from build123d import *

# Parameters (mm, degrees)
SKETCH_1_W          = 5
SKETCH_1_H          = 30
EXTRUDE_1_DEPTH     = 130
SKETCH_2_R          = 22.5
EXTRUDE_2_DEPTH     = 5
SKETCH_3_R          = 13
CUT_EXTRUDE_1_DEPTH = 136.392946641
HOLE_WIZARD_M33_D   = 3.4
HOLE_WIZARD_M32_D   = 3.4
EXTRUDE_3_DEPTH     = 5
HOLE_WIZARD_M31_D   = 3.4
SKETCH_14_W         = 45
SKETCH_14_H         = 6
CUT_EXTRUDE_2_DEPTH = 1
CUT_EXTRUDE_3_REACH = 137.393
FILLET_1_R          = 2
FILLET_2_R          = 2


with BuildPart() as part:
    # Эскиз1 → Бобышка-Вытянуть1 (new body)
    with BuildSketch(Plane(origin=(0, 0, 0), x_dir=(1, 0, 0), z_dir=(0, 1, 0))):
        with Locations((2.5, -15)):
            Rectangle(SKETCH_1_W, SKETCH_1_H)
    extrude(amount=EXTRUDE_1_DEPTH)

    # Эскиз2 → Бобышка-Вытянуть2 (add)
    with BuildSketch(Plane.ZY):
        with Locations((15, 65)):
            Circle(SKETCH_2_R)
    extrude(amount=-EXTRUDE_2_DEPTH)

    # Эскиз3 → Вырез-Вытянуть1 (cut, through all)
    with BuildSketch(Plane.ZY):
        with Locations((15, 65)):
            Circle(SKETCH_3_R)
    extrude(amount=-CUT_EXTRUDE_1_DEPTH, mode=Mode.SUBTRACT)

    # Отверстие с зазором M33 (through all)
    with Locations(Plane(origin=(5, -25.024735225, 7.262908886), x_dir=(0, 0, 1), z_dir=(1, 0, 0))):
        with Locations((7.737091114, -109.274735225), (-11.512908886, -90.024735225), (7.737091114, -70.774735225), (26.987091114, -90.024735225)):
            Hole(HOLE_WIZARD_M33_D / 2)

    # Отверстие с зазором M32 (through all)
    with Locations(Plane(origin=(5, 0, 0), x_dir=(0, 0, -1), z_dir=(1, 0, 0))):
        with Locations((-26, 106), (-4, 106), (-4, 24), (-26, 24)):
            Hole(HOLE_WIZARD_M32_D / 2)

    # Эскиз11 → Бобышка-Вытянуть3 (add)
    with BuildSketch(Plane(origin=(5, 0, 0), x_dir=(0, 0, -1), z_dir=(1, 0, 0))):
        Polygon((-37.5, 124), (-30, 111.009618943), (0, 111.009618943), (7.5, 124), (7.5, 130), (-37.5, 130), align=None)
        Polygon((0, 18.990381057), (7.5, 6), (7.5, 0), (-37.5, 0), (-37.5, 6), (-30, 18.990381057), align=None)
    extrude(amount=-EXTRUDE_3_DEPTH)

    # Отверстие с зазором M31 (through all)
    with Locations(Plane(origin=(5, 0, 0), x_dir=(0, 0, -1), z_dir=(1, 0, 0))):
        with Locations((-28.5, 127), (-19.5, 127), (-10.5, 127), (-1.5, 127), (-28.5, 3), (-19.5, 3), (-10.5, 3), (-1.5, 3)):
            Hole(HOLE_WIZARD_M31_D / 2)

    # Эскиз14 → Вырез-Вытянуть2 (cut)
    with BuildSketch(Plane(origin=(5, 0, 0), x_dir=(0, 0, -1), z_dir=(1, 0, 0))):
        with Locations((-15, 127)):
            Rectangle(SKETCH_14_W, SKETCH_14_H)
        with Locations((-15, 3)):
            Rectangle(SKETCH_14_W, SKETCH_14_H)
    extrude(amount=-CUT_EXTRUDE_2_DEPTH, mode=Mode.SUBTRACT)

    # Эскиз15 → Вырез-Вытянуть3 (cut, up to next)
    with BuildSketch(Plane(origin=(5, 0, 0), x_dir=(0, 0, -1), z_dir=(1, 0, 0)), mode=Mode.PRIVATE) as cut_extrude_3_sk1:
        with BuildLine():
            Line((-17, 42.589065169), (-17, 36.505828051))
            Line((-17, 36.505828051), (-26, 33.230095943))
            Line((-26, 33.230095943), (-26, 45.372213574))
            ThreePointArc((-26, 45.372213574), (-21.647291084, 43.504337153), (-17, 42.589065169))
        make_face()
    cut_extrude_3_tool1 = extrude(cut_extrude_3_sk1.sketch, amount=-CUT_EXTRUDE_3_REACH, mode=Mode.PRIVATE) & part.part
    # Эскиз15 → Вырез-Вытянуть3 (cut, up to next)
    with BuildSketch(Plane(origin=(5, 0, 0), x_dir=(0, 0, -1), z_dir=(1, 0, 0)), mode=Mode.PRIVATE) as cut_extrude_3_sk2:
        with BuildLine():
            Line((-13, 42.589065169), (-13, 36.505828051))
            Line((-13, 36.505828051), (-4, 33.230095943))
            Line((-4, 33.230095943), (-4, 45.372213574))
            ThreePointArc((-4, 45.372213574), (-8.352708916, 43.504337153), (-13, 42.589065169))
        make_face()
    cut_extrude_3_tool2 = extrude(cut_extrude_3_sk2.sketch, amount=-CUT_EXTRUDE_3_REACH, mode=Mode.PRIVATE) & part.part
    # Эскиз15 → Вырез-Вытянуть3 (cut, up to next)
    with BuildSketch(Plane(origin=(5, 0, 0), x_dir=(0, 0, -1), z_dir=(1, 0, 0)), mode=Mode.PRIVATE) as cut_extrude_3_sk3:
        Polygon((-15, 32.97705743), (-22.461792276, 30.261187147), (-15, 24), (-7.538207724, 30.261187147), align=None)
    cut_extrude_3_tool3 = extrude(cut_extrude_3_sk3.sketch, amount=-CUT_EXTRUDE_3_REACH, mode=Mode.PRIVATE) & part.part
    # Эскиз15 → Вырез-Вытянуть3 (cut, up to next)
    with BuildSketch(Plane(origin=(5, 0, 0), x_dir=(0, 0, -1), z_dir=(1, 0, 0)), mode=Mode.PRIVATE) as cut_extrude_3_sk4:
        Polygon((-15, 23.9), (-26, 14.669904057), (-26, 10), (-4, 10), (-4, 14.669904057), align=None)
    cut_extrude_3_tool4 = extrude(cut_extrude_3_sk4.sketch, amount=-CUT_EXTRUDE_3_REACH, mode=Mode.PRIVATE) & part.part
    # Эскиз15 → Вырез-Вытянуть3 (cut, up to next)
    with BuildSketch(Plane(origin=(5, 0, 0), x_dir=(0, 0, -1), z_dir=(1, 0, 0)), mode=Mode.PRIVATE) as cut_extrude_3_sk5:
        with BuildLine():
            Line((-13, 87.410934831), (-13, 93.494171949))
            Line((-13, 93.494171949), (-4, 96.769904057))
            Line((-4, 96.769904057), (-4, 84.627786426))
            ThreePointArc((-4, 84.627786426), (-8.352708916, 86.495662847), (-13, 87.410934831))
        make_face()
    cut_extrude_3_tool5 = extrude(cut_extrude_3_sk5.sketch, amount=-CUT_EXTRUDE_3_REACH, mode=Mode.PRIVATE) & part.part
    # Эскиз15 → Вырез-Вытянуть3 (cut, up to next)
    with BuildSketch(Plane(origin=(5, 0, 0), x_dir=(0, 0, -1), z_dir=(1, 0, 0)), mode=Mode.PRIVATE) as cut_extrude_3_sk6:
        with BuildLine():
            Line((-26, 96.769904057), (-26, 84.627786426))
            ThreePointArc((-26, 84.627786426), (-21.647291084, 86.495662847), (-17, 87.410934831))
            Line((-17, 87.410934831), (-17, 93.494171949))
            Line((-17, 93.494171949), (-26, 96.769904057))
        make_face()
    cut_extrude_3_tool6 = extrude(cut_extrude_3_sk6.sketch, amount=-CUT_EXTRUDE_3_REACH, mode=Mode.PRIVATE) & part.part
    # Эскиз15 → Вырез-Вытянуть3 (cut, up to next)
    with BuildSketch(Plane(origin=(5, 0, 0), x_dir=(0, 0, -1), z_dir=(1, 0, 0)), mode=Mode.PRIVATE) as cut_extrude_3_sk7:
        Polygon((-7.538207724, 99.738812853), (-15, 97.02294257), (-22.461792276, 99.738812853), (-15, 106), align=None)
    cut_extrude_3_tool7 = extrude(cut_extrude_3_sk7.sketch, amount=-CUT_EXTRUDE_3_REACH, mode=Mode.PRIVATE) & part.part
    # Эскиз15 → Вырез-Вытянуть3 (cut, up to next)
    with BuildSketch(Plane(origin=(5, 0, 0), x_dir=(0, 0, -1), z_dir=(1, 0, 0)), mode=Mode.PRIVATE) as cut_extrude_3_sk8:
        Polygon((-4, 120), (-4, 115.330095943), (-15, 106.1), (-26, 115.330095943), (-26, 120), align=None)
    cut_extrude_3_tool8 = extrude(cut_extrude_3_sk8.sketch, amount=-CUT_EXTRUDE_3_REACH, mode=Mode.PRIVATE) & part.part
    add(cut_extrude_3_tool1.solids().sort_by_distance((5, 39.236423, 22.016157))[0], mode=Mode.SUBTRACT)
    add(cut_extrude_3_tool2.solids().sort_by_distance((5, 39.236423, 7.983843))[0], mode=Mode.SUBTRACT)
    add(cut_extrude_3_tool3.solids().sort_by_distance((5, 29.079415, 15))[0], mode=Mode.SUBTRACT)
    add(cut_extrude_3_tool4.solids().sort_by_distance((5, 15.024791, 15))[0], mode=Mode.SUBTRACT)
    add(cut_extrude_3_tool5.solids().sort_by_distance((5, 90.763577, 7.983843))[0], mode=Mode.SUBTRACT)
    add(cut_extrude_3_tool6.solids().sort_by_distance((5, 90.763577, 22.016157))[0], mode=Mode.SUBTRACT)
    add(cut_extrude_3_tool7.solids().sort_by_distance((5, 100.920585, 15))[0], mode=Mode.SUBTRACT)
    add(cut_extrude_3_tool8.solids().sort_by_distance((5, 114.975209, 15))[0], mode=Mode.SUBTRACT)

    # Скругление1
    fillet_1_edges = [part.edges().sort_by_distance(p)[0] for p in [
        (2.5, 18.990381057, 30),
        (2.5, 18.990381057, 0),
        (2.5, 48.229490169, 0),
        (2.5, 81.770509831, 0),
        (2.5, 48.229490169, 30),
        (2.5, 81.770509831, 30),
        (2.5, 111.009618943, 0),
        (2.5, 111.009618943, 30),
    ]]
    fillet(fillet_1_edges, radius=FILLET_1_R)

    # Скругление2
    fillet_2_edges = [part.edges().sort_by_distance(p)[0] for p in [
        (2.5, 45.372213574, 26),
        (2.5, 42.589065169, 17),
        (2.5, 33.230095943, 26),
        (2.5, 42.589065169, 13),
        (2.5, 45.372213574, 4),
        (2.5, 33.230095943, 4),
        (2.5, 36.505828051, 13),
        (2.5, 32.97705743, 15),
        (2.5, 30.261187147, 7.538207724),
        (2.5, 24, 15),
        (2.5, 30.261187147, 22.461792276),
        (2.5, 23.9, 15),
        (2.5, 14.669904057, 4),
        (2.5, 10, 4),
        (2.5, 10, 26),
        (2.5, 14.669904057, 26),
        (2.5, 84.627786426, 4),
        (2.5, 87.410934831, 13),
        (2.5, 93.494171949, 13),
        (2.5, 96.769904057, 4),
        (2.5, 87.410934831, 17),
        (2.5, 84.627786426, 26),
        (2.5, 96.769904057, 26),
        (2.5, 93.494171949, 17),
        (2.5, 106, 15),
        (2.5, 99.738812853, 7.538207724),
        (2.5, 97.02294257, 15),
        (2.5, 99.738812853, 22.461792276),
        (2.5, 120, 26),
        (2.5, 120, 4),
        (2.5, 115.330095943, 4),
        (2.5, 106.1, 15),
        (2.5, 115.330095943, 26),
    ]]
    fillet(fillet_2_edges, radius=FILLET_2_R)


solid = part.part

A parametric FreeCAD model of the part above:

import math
import FreeCAD as App
import Part
import Sketcher

V = App.Vector
Q = App.Units.Quantity


def edges_at(feature, points):
    """Names of the edges that pass closest to the given points."""
    edges = feature.Shape.Edges
    near = lambda p: min(range(len(edges)), key=lambda i: edges[i].distToShape(Part.Vertex(*p))[0])
    return sorted({f"Edge{near(p) + 1}" for p in points})

doc = App.newDocument("Part")
body = doc.addObject("PartDesign::Body", "Body")

# Sketch on XZ plane
sketch1 = body.newObject("Sketcher::SketchObject", "Sketch")
sketch1.AttachmentSupport = (doc.getObject("XZ_Plane"), [""])
sketch1.MapMode = "FlatFace"
sketch1.addGeometry(Part.LineSegment(V(0, 0, 0), V(0, 30, 0)), False)
sketch1.addGeometry(Part.LineSegment(V(0, 30, 0), V(5, 30, 0)), False)
sketch1.addGeometry(Part.LineSegment(V(5, 30, 0), V(5, 0, 0)), False)
sketch1.addGeometry(Part.LineSegment(V(5, 0, 0), V(0, 0, 0)), False)
sketch1.addConstraint(Sketcher.Constraint("Coincident", 0, 2, 1, 1))
sketch1.addConstraint(Sketcher.Constraint("Coincident", 1, 2, 2, 1))
sketch1.addConstraint(Sketcher.Constraint("Coincident", 2, 2, 3, 1))
sketch1.addConstraint(Sketcher.Constraint("Coincident", 3, 2, 0, 1))
sketch1.addConstraint(Sketcher.Constraint("Vertical", 0))
sketch1.addConstraint(Sketcher.Constraint("Horizontal", 1))
sketch1.addConstraint(Sketcher.Constraint("Vertical", 2))
sketch1.addConstraint(Sketcher.Constraint("Horizontal", 3))
sketch1.addConstraint(Sketcher.Constraint("Coincident", 3, 2, -1, 1))
sketch1.addConstraint(Sketcher.Constraint("DistanceX", 1, 1, 1, 2, 5.0))
sketch1.addConstraint(Sketcher.Constraint("DistanceY", 0, 1, 0, 2, 30.0))
pad1 = body.newObject("PartDesign::Pad", "Pad")
pad1.Profile = sketch1
pad1.Length = 130
pad1.Reversed = True

# Sketch on YZ plane
sketch2 = body.newObject("Sketcher::SketchObject", "Sketch001")
sketch2.AttachmentSupport = (doc.getObject("YZ_Plane"), [""])
sketch2.MapMode = "FlatFace"
sketch2.addGeometry(Part.Circle(V(65, 15, 0), V(0, 0, 1), 22), False)
sketch2.addConstraint(Sketcher.Constraint("Diameter", 0, 45.0))
sketch2.addConstraint(Sketcher.Constraint("DistanceX", -1, 1, 0, 3, 65.0))
sketch2.addConstraint(Sketcher.Constraint("DistanceY", -1, 1, 0, 3, 15.0))
pad2 = body.newObject("PartDesign::Pad", "Pad001")
pad2.Profile = sketch2
pad2.Length = 5

# Sketch on YZ plane
sketch3 = body.newObject("Sketcher::SketchObject", "Sketch002")
sketch3.AttachmentSupport = (doc.getObject("YZ_Plane"), [""])
sketch3.MapMode = "FlatFace"
sketch3.addGeometry(Part.Circle(V(65, 15, 0), V(0, 0, 1), 13), False)
sketch3.addConstraint(Sketcher.Constraint("Diameter", 0, 26.0))
sketch3.addConstraint(Sketcher.Constraint("DistanceX", -1, 1, 0, 3, 65.0))
sketch3.addConstraint(Sketcher.Constraint("DistanceY", -1, 1, 0, 3, 15.0))
pocket1 = body.newObject("PartDesign::Pocket", "Pocket")
pocket1.Profile = sketch3
pocket1.Type = "ThroughAll"
pocket1.Reversed = True

# Sketch on YZ plane
sketch4 = body.newObject("Sketcher::SketchObject", "Sketch003")
sketch4.AttachmentSupport = (doc.getObject("YZ_Plane"), [""])
sketch4.MapMode = "FlatFace"
sketch4.AttachmentOffset = App.Placement(V(0, 0, 5), App.Rotation())
sketch4.addGeometry(Part.Circle(V(84.2, 15, 0), V(0, 0, 1), 1.7), False)
sketch4.addGeometry(Part.Circle(V(65, -4.2, 0), V(0, 0, 1), 1.7), False)
sketch4.addGeometry(Part.Circle(V(45.8, 15, 0), V(0, 0, 1), 1.7), False)
sketch4.addGeometry(Part.Circle(V(65, 34.2, 0), V(0, 0, 1), 1.7), False)
sketch4.addConstraint(Sketcher.Constraint("Equal", 0, 1))
sketch4.addConstraint(Sketcher.Constraint("Equal", 1, 2))
sketch4.addConstraint(Sketcher.Constraint("Equal", 2, 3))
sketch4.addConstraint(Sketcher.Constraint("Horizontal", 0, 3, 2, 3))
sketch4.addConstraint(Sketcher.Constraint("Vertical", 1, 3, 3, 3))
sketch4.addConstraint(Sketcher.Constraint("Diameter", 0, 3.4))
sketch4.addConstraint(Sketcher.Constraint("DistanceY", -1, 1, 0, 3, 15.0))
sketch4.addConstraint(Sketcher.Constraint("DistanceX", -1, 1, 1, 3, 65.0))
sketch4.addConstraint(Sketcher.Constraint("DistanceX", 2, 3, 0, 3, 38.5))
sketch4.addConstraint(Sketcher.Constraint("DistanceY", 1, 3, 3, 3, 38.5))
sketch4.addConstraint(Sketcher.Constraint("DistanceX", -1, 1, 0, 3, 84.25))
sketch4.addConstraint(Sketcher.Constraint("DistanceY", 1, 3, -1, 1, 4.25))
doc.recompute()
hole = body.newObject("PartDesign::Hole", "Hole")
hole.Profile = sketch4
hole.ThreadType = "None"
hole.Diameter = 3.4
hole.DepthType = "ThroughAll"

# Sketch on YZ plane
sketch5 = body.newObject("Sketcher::SketchObject", "Sketch004")
sketch5.AttachmentSupport = (doc.getObject("YZ_Plane"), [""])
sketch5.MapMode = "FlatFace"
sketch5.AttachmentOffset = App.Placement(V(0, 0, 5), App.Rotation())
sketch5.addGeometry(Part.Circle(V(106, 26, 0), V(0, 0, 1), 1.7), False)
sketch5.addGeometry(Part.Circle(V(106, 4, 0), V(0, 0, 1), 1.7), False)
sketch5.addGeometry(Part.Circle(V(24, 4, 0), V(0, 0, 1), 1.7), False)
sketch5.addGeometry(Part.Circle(V(24, 26, 0), V(0, 0, 1), 1.7), False)
sketch5.addConstraint(Sketcher.Constraint("Equal", 0, 1))
sketch5.addConstraint(Sketcher.Constraint("Equal", 1, 2))
sketch5.addConstraint(Sketcher.Constraint("Equal", 2, 3))
sketch5.addConstraint(Sketcher.Constraint("Horizontal", 1, 3, 2, 3))
sketch5.addConstraint(Sketcher.Constraint("Horizontal", 0, 3, 3, 3))
sketch5.addConstraint(Sketcher.Constraint("Vertical", 0, 3, 1, 3))
sketch5.addConstraint(Sketcher.Constraint("Vertical", 2, 3, 3, 3))
sketch5.addConstraint(Sketcher.Constraint("Diameter", 0, 3.4))
sketch5.addConstraint(Sketcher.Constraint("DistanceX", -1, 1, 0, 3, 106.0))
sketch5.addConstraint(Sketcher.Constraint("DistanceY", -1, 1, 0, 3, 26.0))
sketch5.addConstraint(Sketcher.Constraint("DistanceY", -1, 1, 1, 3, 4.0))
sketch5.addConstraint(Sketcher.Constraint("DistanceX", -1, 1, 2, 3, 24.0))
doc.recompute()
hole2 = body.newObject("PartDesign::Hole", "Hole001")
hole2.Profile = sketch5
hole2.ThreadType = "None"
hole2.Diameter = 3.4
hole2.DepthType = "ThroughAll"

# Sketch on YZ plane
sketch6 = body.newObject("Sketcher::SketchObject", "Sketch005")
sketch6.AttachmentSupport = (doc.getObject("YZ_Plane"), [""])
sketch6.MapMode = "FlatFace"
sketch6.AttachmentOffset = App.Placement(V(0, 0, 5), App.Rotation())
sketch6.addGeometry(Part.LineSegment(V(124, 38, 0), V(111, 30, 0)), False)
sketch6.addGeometry(Part.LineSegment(V(111, 30, 0), V(111, 0, 0)), False)
sketch6.addGeometry(Part.LineSegment(V(111, 0, 0), V(124, -8, 0)), False)
sketch6.addGeometry(Part.LineSegment(V(124, -8, 0), V(130, -8, 0)), False)
sketch6.addGeometry(Part.LineSegment(V(130, -8, 0), V(130, 38, 0)), False)
sketch6.addGeometry(Part.LineSegment(V(130, 38, 0), V(124, 38, 0)), False)
sketch6.addGeometry(Part.LineSegment(V(6, -8, 0), V(19, 0, 0)), False)
sketch6.addGeometry(Part.LineSegment(V(19, 0, 0), V(19, 30, 0)), False)
sketch6.addGeometry(Part.LineSegment(V(19, 30, 0), V(6, 38, 0)), False)
sketch6.addGeometry(Part.LineSegment(V(6, 38, 0), V(0, 38, 0)), False)
sketch6.addGeometry(Part.LineSegment(V(0, 38, 0), V(0, -8, 0)), False)
sketch6.addGeometry(Part.LineSegment(V(0, -8, 0), V(6, -8, 0)), False)
sketch6.addConstraint(Sketcher.Constraint("Coincident", 0, 2, 1, 1))
sketch6.addConstraint(Sketcher.Constraint("Coincident", 1, 2, 2, 1))
sketch6.addConstraint(Sketcher.Constraint("Coincident", 2, 2, 3, 1))
sketch6.addConstraint(Sketcher.Constraint("Coincident", 3, 2, 4, 1))
sketch6.addConstraint(Sketcher.Constraint("Coincident", 4, 2, 5, 1))
sketch6.addConstraint(Sketcher.Constraint("Coincident", 5, 2, 0, 1))
sketch6.addConstraint(Sketcher.Constraint("Coincident", 6, 2, 7, 1))
sketch6.addConstraint(Sketcher.Constraint("Coincident", 7, 2, 8, 1))
sketch6.addConstraint(Sketcher.Constraint("Coincident", 8, 2, 9, 1))
sketch6.addConstraint(Sketcher.Constraint("Coincident", 9, 2, 10, 1))
sketch6.addConstraint(Sketcher.Constraint("Coincident", 10, 2, 11, 1))
sketch6.addConstraint(Sketcher.Constraint("Coincident", 11, 2, 6, 1))
sketch6.addConstraint(Sketcher.Constraint("Vertical", 1))
sketch6.addConstraint(Sketcher.Constraint("Horizontal", 3))
sketch6.addConstraint(Sketcher.Constraint("Vertical", 4))
sketch6.addConstraint(Sketcher.Constraint("Horizontal", 5))
sketch6.addConstraint(Sketcher.Constraint("Vertical", 7))
sketch6.addConstraint(Sketcher.Constraint("Horizontal", 9))
sketch6.addConstraint(Sketcher.Constraint("Vertical", 10))
sketch6.addConstraint(Sketcher.Constraint("Horizontal", 11))
sketch6.addConstraint(Sketcher.Constraint("PointOnObject", 1, 2, -1))
sketch6.addConstraint(Sketcher.Constraint("PointOnObject", 6, 2, -1))
sketch6.addConstraint(Sketcher.Constraint("PointOnObject", 9, 2, -2))
sketch6.addConstraint(Sketcher.Constraint("Parallel", 0, 6))
sketch6.addConstraint(Sketcher.Constraint("Parallel", 2, 8))
sketch6.addConstraint(Sketcher.Constraint("Horizontal", 0, 2, 7, 2))
sketch6.addConstraint(Sketcher.Constraint("Horizontal", 5, 2, 8, 2))
sketch6.addConstraint(Sketcher.Constraint("Horizontal", 3, 2, 10, 2))
sketch6.addConstraint(Sketcher.Constraint("Vertical", 2, 2, 5, 2))
sketch6.addConstraint(Sketcher.Constraint("Vertical", 8, 2, 11, 2))
sketch6.addConstraint(Sketcher.Constraint("Equal", 5, 9))
sketch6.addConstraint(Sketcher.Constraint("DistanceX", 3, 1, 3, 2, 6.0))
sketch6.addConstraint(Sketcher.Constraint("DistanceY", 1, 2, 1, 1, 30.0))
sketch6.addConstraint(Sketcher.Constraint("DistanceY", 4, 1, 4, 2, 45.0))
sketch6.addConstraint(Sketcher.Constraint("Angle", 0, Q("-150 deg")))
sketch6.addConstraint(Sketcher.Constraint("DistanceX", -1, 1, 2, 2, 124.0))
pad3 = body.newObject("PartDesign::Pad", "Pad002")
pad3.Profile = sketch6
pad3.Length = 5
pad3.Reversed = True

# Sketch on YZ plane
sketch7 = body.newObject("Sketcher::SketchObject", "Sketch006")
sketch7.AttachmentSupport = (doc.getObject("YZ_Plane"), [""])
sketch7.MapMode = "FlatFace"
sketch7.AttachmentOffset = App.Placement(V(0, 0, 5), App.Rotation())
sketch7.addGeometry(Part.Circle(V(127, 28.5, 0), V(0, 0, 1), 1.7), False)
sketch7.addGeometry(Part.Circle(V(127, 19.5, 0), V(0, 0, 1), 1.7), False)
sketch7.addGeometry(Part.Circle(V(127, 10.5, 0), V(0, 0, 1), 1.7), False)
sketch7.addGeometry(Part.Circle(V(127, 1.5, 0), V(0, 0, 1), 1.7), False)
sketch7.addGeometry(Part.Circle(V(3, 28.5, 0), V(0, 0, 1), 1.7), False)
sketch7.addGeometry(Part.Circle(V(3, 19.5, 0), V(0, 0, 1), 1.7), False)
sketch7.addGeometry(Part.Circle(V(3, 10.5, 0), V(0, 0, 1), 1.7), False)
sketch7.addGeometry(Part.Circle(V(3, 1.5, 0), V(0, 0, 1), 1.7), False)
sketch7.addConstraint(Sketcher.Constraint("Equal", 0, 1))
sketch7.addConstraint(Sketcher.Constraint("Equal", 1, 2))
sketch7.addConstraint(Sketcher.Constraint("Equal", 2, 3))
sketch7.addConstraint(Sketcher.Constraint("Equal", 3, 4))
sketch7.addConstraint(Sketcher.Constraint("Equal", 4, 5))
sketch7.addConstraint(Sketcher.Constraint("Equal", 5, 6))
sketch7.addConstraint(Sketcher.Constraint("Equal", 6, 7))
sketch7.addConstraint(Sketcher.Constraint("Horizontal", 0, 3, 4, 3))
sketch7.addConstraint(Sketcher.Constraint("Horizontal", 1, 3, 5, 3))
sketch7.addConstraint(Sketcher.Constraint("Horizontal", 2, 3, 6, 3))
sketch7.addConstraint(Sketcher.Constraint("Horizontal", 3, 3, 7, 3))
sketch7.addConstraint(Sketcher.Constraint("Vertical", 0, 3, 1, 3))
sketch7.addConstraint(Sketcher.Constraint("Vertical", 1, 3, 2, 3))
sketch7.addConstraint(Sketcher.Constraint("Vertical", 2, 3, 3, 3))
sketch7.addConstraint(Sketcher.Constraint("Vertical", 4, 3, 5, 3))
sketch7.addConstraint(Sketcher.Constraint("Vertical", 5, 3, 6, 3))
sketch7.addConstraint(Sketcher.Constraint("Vertical", 6, 3, 7, 3))
sketch7.addConstraint(Sketcher.Constraint("Diameter", 0, 3.4))
sketch7.addConstraint(Sketcher.Constraint("DistanceX", -1, 1, 0, 3, 127.0))
sketch7.addConstraint(Sketcher.Constraint("DistanceX", -1, 1, 4, 3, 3.0))
sketch7.addConstraint(Sketcher.Constraint("DistanceY", 1, 3, 0, 3, 9.0))
sketch7.addConstraint(Sketcher.Constraint("DistanceY", 2, 3, 1, 3, 9.0))
sketch7.addConstraint(Sketcher.Constraint("DistanceY", 3, 3, 2, 3, 9.0))
sketch7.addConstraint(Sketcher.Constraint("DistanceY", -1, 1, 0, 3, 28.5))
doc.recompute()
hole3 = body.newObject("PartDesign::Hole", "Hole002")
hole3.Profile = sketch7
hole3.ThreadType = "None"
hole3.Diameter = 3.4
hole3.DepthType = "ThroughAll"

# Sketch on YZ plane
sketch8 = body.newObject("Sketcher::SketchObject", "Sketch007")
sketch8.AttachmentSupport = (doc.getObject("YZ_Plane"), [""])
sketch8.MapMode = "FlatFace"
sketch8.AttachmentOffset = App.Placement(V(0, 0, 5), App.Rotation())
sketch8.addGeometry(Part.LineSegment(V(130, 38, 0), V(124, 38, 0)), False)
sketch8.addGeometry(Part.LineSegment(V(124, 38, 0), V(124, -8, 0)), False)
sketch8.addGeometry(Part.LineSegment(V(124, -8, 0), V(130, -8, 0)), False)
sketch8.addGeometry(Part.LineSegment(V(130, -8, 0), V(130, 38, 0)), False)
sketch8.addGeometry(Part.LineSegment(V(6, 38, 0), V(0, 38, 0)), False)
sketch8.addGeometry(Part.LineSegment(V(0, 38, 0), V(0, -8, 0)), False)
sketch8.addGeometry(Part.LineSegment(V(0, -8, 0), V(6, -8, 0)), False)
sketch8.addGeometry(Part.LineSegment(V(6, -8, 0), V(6, 38, 0)), False)
sketch8.addConstraint(Sketcher.Constraint("Coincident", 0, 2, 1, 1))
sketch8.addConstraint(Sketcher.Constraint("Coincident", 1, 2, 2, 1))
sketch8.addConstraint(Sketcher.Constraint("Coincident", 2, 2, 3, 1))
sketch8.addConstraint(Sketcher.Constraint("Coincident", 3, 2, 0, 1))
sketch8.addConstraint(Sketcher.Constraint("Coincident", 4, 2, 5, 1))
sketch8.addConstraint(Sketcher.Constraint("Coincident", 5, 2, 6, 1))
sketch8.addConstraint(Sketcher.Constraint("Coincident", 6, 2, 7, 1))
sketch8.addConstraint(Sketcher.Constraint("Coincident", 7, 2, 4, 1))
sketch8.addConstraint(Sketcher.Constraint("Horizontal", 0))
sketch8.addConstraint(Sketcher.Constraint("Vertical", 1))
sketch8.addConstraint(Sketcher.Constraint("Horizontal", 2))
sketch8.addConstraint(Sketcher.Constraint("Vertical", 3))
sketch8.addConstraint(Sketcher.Constraint("Horizontal", 4))
sketch8.addConstraint(Sketcher.Constraint("Vertical", 5))
sketch8.addConstraint(Sketcher.Constraint("Horizontal", 6))
sketch8.addConstraint(Sketcher.Constraint("Vertical", 7))
sketch8.addConstraint(Sketcher.Constraint("PointOnObject", 4, 2, -2))
sketch8.addConstraint(Sketcher.Constraint("Horizontal", 3, 2, 4, 2))
sketch8.addConstraint(Sketcher.Constraint("Horizontal", 2, 2, 5, 2))
sketch8.addConstraint(Sketcher.Constraint("Equal", 2, 4))
sketch8.addConstraint(Sketcher.Constraint("DistanceX", 0, 2, 0, 1, 6.0))
sketch8.addConstraint(Sketcher.Constraint("DistanceY", 1, 2, 1, 1, 45.0))
sketch8.addConstraint(Sketcher.Constraint("DistanceX", -1, 1, 0, 2, 124.0))
sketch8.addConstraint(Sketcher.Constraint("DistanceY", -1, 1, 0, 2, 37.5))
pocket2 = body.newObject("PartDesign::Pocket", "Pocket001")
pocket2.Profile = sketch8
pocket2.Length = 1

# Sketch on YZ plane
sketch9 = body.newObject("Sketcher::SketchObject", "Sketch008")
sketch9.AttachmentSupport = (doc.getObject("YZ_Plane"), [""])
sketch9.MapMode = "FlatFace"
sketch9.AttachmentOffset = App.Placement(V(0, 0, 5), App.Rotation())
sketch9.addGeometry(Part.LineSegment(V(37, 17, 0), V(43, 17, 0)), False)
sketch9.addGeometry(Part.ArcOfCircle(Part.Circle(V(65, 15, 0), V(0, 0, 1), 23), math.radians(151), math.radians(175)), False)
sketch9.addGeometry(Part.LineSegment(V(45, 26, 0), V(33, 26, 0)), False)
sketch9.addGeometry(Part.LineSegment(V(33, 26, 0), V(37, 17, 0)), False)
sketch9.addConstraint(Sketcher.Constraint("Coincident", 0, 2, 1, 2))
sketch9.addConstraint(Sketcher.Constraint("Coincident", 1, 1, 2, 1))
sketch9.addConstraint(Sketcher.Constraint("Coincident", 2, 2, 3, 1))
sketch9.addConstraint(Sketcher.Constraint("Coincident", 3, 2, 0, 1))
sketch9.addConstraint(Sketcher.Constraint("Horizontal", 0))
sketch9.addConstraint(Sketcher.Constraint("Horizontal", 2))
sketch9.addConstraint(Sketcher.Constraint("Radius", 1, 22.5))
sketch9.addConstraint(Sketcher.Constraint("Angle", 3, Q("-70 deg")))
sketch9.addConstraint(Sketcher.Constraint("DistanceX", -1, 1, 1, 3, 65.0))
sketch9.addConstraint(Sketcher.Constraint("DistanceY", -1, 1, 1, 3, 15.0))
sketch9.addConstraint(Sketcher.Constraint("DistanceY", -1, 1, 0, 2, 17.0))
sketch9.addConstraint(Sketcher.Constraint("DistanceY", -1, 1, 1, 1, 26.0))
sketch9.addConstraint(Sketcher.Constraint("DistanceX", 0, 1, 0, 2, 6.083237))
pocket3 = body.newObject("PartDesign::Pocket", "Pocket002")
pocket3.Profile = sketch9
pocket3.Type = "UpToFirst"

# Sketch on YZ plane
sketch10 = body.newObject("Sketcher::SketchObject", "Sketch009")
sketch10.AttachmentSupport = (doc.getObject("YZ_Plane"), [""])
sketch10.MapMode = "FlatFace"
sketch10.AttachmentOffset = App.Placement(V(0, 0, 5), App.Rotation())
sketch10.addGeometry(Part.LineSegment(V(43, 13, 0), V(37, 13, 0)), False)
sketch10.addGeometry(Part.LineSegment(V(37, 13, 0), V(33, 4, 0)), False)
sketch10.addGeometry(Part.LineSegment(V(33, 4, 0), V(45, 4, 0)), False)
sketch10.addGeometry(Part.ArcOfCircle(Part.Circle(V(65, 15, 0), V(0, 0, 1), 23), math.radians(-175), math.radians(-151)), False)
sketch10.addConstraint(Sketcher.Constraint("Coincident", 0, 2, 1, 1))
sketch10.addConstraint(Sketcher.Constraint("Coincident", 1, 2, 2, 1))
sketch10.addConstraint(Sketcher.Constraint("Coincident", 2, 2, 3, 2))
sketch10.addConstraint(Sketcher.Constraint("Coincident", 3, 1, 0, 1))
sketch10.addConstraint(Sketcher.Constraint("Horizontal", 0))
sketch10.addConstraint(Sketcher.Constraint("Horizontal", 2))
sketch10.addConstraint(Sketcher.Constraint("Radius", 3, 22.5))
sketch10.addConstraint(Sketcher.Constraint("Angle", 1, Q("-110 deg")))
sketch10.addConstraint(Sketcher.Constraint("DistanceX", -1, 1, 3, 3, 65.0))
sketch10.addConstraint(Sketcher.Constraint("DistanceY", -1, 1, 3, 3, 15.0))
sketch10.addConstraint(Sketcher.Constraint("DistanceY", -1, 1, 0, 2, 13.0))
sketch10.addConstraint(Sketcher.Constraint("DistanceY", -1, 1, 1, 2, 4.0))
sketch10.addConstraint(Sketcher.Constraint("DistanceX", 0, 2, 0, 1, 6.083237))
pocket4 = body.newObject("PartDesign::Pocket", "Pocket003")
pocket4.Profile = sketch10
pocket4.Type = "UpToFirst"

# Sketch on YZ plane
sketch11 = body.newObject("Sketcher::SketchObject", "Sketch010")
sketch11.AttachmentSupport = (doc.getObject("YZ_Plane"), [""])
sketch11.MapMode = "FlatFace"
sketch11.AttachmentOffset = App.Placement(V(0, 0, 5), App.Rotation())
sketch11.addGeometry(Part.LineSegment(V(33, 15, 0), V(30, 22, 0)), False)
sketch11.addGeometry(Part.LineSegment(V(30, 22, 0), V(24, 15, 0)), False)
sketch11.addGeometry(Part.LineSegment(V(24, 15, 0), V(30, 8, 0)), False)
sketch11.addGeometry(Part.LineSegment(V(30, 8, 0), V(33, 15, 0)), False)
sketch11.addConstraint(Sketcher.Constraint("Coincident", 0, 2, 1, 1))
sketch11.addConstraint(Sketcher.Constraint("Coincident", 1, 2, 2, 1))
sketch11.addConstraint(Sketcher.Constraint("Coincident", 2, 2, 3, 1))
sketch11.addConstraint(Sketcher.Constraint("Coincident", 3, 2, 0, 1))
sketch11.addConstraint(Sketcher.Constraint("Horizontal", 1, 2, 3, 2))
sketch11.addConstraint(Sketcher.Constraint("Vertical", 0, 2, 2, 2))
sketch11.addConstraint(Sketcher.Constraint("Equal", 1, 2))
sketch11.addConstraint(Sketcher.Constraint("Angle", 0, Q("110 deg")))
sketch11.addConstraint(Sketcher.Constraint("Angle", 1, Q("-130 deg")))
sketch11.addConstraint(Sketcher.Constraint("DistanceX", -1, 1, 1, 2, 24.0))
sketch11.addConstraint(Sketcher.Constraint("DistanceY", -1, 1, 1, 2, 15.0))
sketch11.addConstraint(Sketcher.Constraint("Distance", 1, 9.740678))
pocket5 = body.newObject("PartDesign::Pocket", "Pocket004")
pocket5.Profile = sketch11
pocket5.Type = "UpToFirst"

# Sketch on YZ plane
sketch12 = body.newObject("Sketcher::SketchObject", "Sketch011")
sketch12.AttachmentSupport = (doc.getObject("YZ_Plane"), [""])
sketch12.MapMode = "FlatFace"
sketch12.AttachmentOffset = App.Placement(V(0, 0, 5), App.Rotation())
sketch12.addGeometry(Part.LineSegment(V(23.9, 15, 0), V(14.7, 26, 0)), False)
sketch12.addGeometry(Part.LineSegment(V(14.7, 26, 0), V(10, 26, 0)), False)
sketch12.addGeometry(Part.LineSegment(V(10, 26, 0), V(10, 4, 0)), False)
sketch12.addGeometry(Part.LineSegment(V(10, 4, 0), V(14.7, 4, 0)), False)
sketch12.addGeometry(Part.LineSegment(V(14.7, 4, 0), V(23.9, 15, 0)), False)
sketch12.addConstraint(Sketcher.Constraint("Coincident", 0, 2, 1, 1))
sketch12.addConstraint(Sketcher.Constraint("Coincident", 1, 2, 2, 1))
sketch12.addConstraint(Sketcher.Constraint("Coincident", 2, 2, 3, 1))
sketch12.addConstraint(Sketcher.Constraint("Coincident", 3, 2, 4, 1))
sketch12.addConstraint(Sketcher.Constraint("Coincident", 4, 2, 0, 1))
sketch12.addConstraint(Sketcher.Constraint("Horizontal", 1))
sketch12.addConstraint(Sketcher.Constraint("Vertical", 2))
sketch12.addConstraint(Sketcher.Constraint("Horizontal", 3))
sketch12.addConstraint(Sketcher.Constraint("Vertical", 0, 2, 3, 2))
sketch12.addConstraint(Sketcher.Constraint("Equal", 0, 4))
sketch12.addConstraint(Sketcher.Constraint("DistanceY", 2, 2, 2, 1, 22.0))
sketch12.addConstraint(Sketcher.Constraint("Angle", 0, Q("130 deg")))
sketch12.addConstraint(Sketcher.Constraint("DistanceY", -1, 1, 0, 2, 26.0))
sketch12.addConstraint(Sketcher.Constraint("DistanceX", -1, 1, 1, 2, 10.0))
sketch12.addConstraint(Sketcher.Constraint("DistanceX", -1, 1, 4, 2, 23.9))
pocket6 = body.newObject("PartDesign::Pocket", "Pocket005")
pocket6.Profile = sketch12
pocket6.Type = "UpToFirst"

# Sketch on YZ plane
sketch13 = body.newObject("Sketcher::SketchObject", "Sketch012")
sketch13.AttachmentSupport = (doc.getObject("YZ_Plane"), [""])
sketch13.MapMode = "FlatFace"
sketch13.AttachmentOffset = App.Placement(V(0, 0, 5), App.Rotation())
sketch13.addGeometry(Part.LineSegment(V(93, 13, 0), V(87, 13, 0)), False)
sketch13.addGeometry(Part.ArcOfCircle(Part.Circle(V(65, 15, 0), V(0, 0, 1), 23), math.radians(-29), math.radians(-5)), False)
sketch13.addGeometry(Part.LineSegment(V(85, 4, 0), V(97, 4, 0)), False)
sketch13.addGeometry(Part.LineSegment(V(97, 4, 0), V(93, 13, 0)), False)
sketch13.addConstraint(Sketcher.Constraint("Coincident", 0, 2, 1, 2))
sketch13.addConstraint(Sketcher.Constraint("Coincident", 1, 1, 2, 1))
sketch13.addConstraint(Sketcher.Constraint("Coincident", 2, 2, 3, 1))
sketch13.addConstraint(Sketcher.Constraint("Coincident", 3, 2, 0, 1))
sketch13.addConstraint(Sketcher.Constraint("Horizontal", 0))
sketch13.addConstraint(Sketcher.Constraint("Horizontal", 2))
sketch13.addConstraint(Sketcher.Constraint("Radius", 1, 22.5))
sketch13.addConstraint(Sketcher.Constraint("Angle", 3, Q("110 deg")))
sketch13.addConstraint(Sketcher.Constraint("DistanceX", -1, 1, 1, 3, 65.0))
sketch13.addConstraint(Sketcher.Constraint("DistanceY", -1, 1, 1, 3, 15.0))
sketch13.addConstraint(Sketcher.Constraint("DistanceY", -1, 1, 0, 2, 13.0))
sketch13.addConstraint(Sketcher.Constraint("DistanceY", -1, 1, 1, 1, 4.0))
sketch13.addConstraint(Sketcher.Constraint("DistanceX", 0, 2, 0, 1, 6.083237))
pocket7 = body.newObject("PartDesign::Pocket", "Pocket006")
pocket7.Profile = sketch13
pocket7.Type = "UpToFirst"

# Sketch on YZ plane
sketch14 = body.newObject("Sketcher::SketchObject", "Sketch013")
sketch14.AttachmentSupport = (doc.getObject("YZ_Plane"), [""])
sketch14.MapMode = "FlatFace"
sketch14.AttachmentOffset = App.Placement(V(0, 0, 5), App.Rotation())
sketch14.addGeometry(Part.LineSegment(V(97, 26, 0), V(85, 26, 0)), False)
sketch14.addGeometry(Part.ArcOfCircle(Part.Circle(V(65, 15, 0), V(0, 0, 1), 23), math.radians(5), math.radians(29)), False)
sketch14.addGeometry(Part.LineSegment(V(87, 17, 0), V(93, 17, 0)), False)
sketch14.addGeometry(Part.LineSegment(V(93, 17, 0), V(97, 26, 0)), False)
sketch14.addConstraint(Sketcher.Constraint("Coincident", 0, 2, 1, 2))
sketch14.addConstraint(Sketcher.Constraint("Coincident", 1, 1, 2, 1))
sketch14.addConstraint(Sketcher.Constraint("Coincident", 2, 2, 3, 1))
sketch14.addConstraint(Sketcher.Constraint("Coincident", 3, 2, 0, 1))
sketch14.addConstraint(Sketcher.Constraint("Horizontal", 0))
sketch14.addConstraint(Sketcher.Constraint("Horizontal", 2))
sketch14.addConstraint(Sketcher.Constraint("Radius", 1, 22.5))
sketch14.addConstraint(Sketcher.Constraint("Angle", 3, Q("70 deg")))
sketch14.addConstraint(Sketcher.Constraint("DistanceX", -1, 1, 1, 3, 65.0))
sketch14.addConstraint(Sketcher.Constraint("DistanceY", -1, 1, 1, 3, 15.0))
sketch14.addConstraint(Sketcher.Constraint("DistanceY", -1, 1, 0, 2, 26.0))
sketch14.addConstraint(Sketcher.Constraint("DistanceY", -1, 1, 1, 1, 17.0))
sketch14.addConstraint(Sketcher.Constraint("DistanceX", 0, 2, 0, 1, 12.142118))
pocket8 = body.newObject("PartDesign::Pocket", "Pocket007")
pocket8.Profile = sketch14
pocket8.Type = "UpToFirst"

# Sketch on YZ plane
sketch15 = body.newObject("Sketcher::SketchObject", "Sketch014")
sketch15.AttachmentSupport = (doc.getObject("YZ_Plane"), [""])
sketch15.MapMode = "FlatFace"
sketch15.AttachmentOffset = App.Placement(V(0, 0, 5), App.Rotation())
sketch15.addGeometry(Part.LineSegment(V(97, 15, 0), V(100, 8, 0)), False)
sketch15.addGeometry(Part.LineSegment(V(100, 8, 0), V(106, 15, 0)), False)
sketch15.addGeometry(Part.LineSegment(V(106, 15, 0), V(100, 22, 0)), False)
sketch15.addGeometry(Part.LineSegment(V(100, 22, 0), V(97, 15, 0)), False)
sketch15.addConstraint(Sketcher.Constraint("Coincident", 0, 2, 1, 1))
sketch15.addConstraint(Sketcher.Constraint("Coincident", 1, 2, 2, 1))
sketch15.addConstraint(Sketcher.Constraint("Coincident", 2, 2, 3, 1))
sketch15.addConstraint(Sketcher.Constraint("Coincident", 3, 2, 0, 1))
sketch15.addConstraint(Sketcher.Constraint("Horizontal", 1, 2, 3, 2))
sketch15.addConstraint(Sketcher.Constraint("Vertical", 0, 2, 2, 2))
sketch15.addConstraint(Sketcher.Constraint("Equal", 1, 2))
sketch15.addConstraint(Sketcher.Constraint("Angle", 0, Q("-70 deg")))
sketch15.addConstraint(Sketcher.Constraint("Angle", 1, Q("50 deg")))
sketch15.addConstraint(Sketcher.Constraint("DistanceX", -1, 1, 1, 2, 106.0))
sketch15.addConstraint(Sketcher.Constraint("DistanceY", -1, 1, 1, 2, 15.0))
sketch15.addConstraint(Sketcher.Constraint("Distance", 1, 9.740678))
pocket9 = body.newObject("PartDesign::Pocket", "Pocket008")
pocket9.Profile = sketch15
pocket9.Type = "UpToFirst"

# Sketch on YZ plane
sketch16 = body.newObject("Sketcher::SketchObject", "Sketch015")
sketch16.AttachmentSupport = (doc.getObject("YZ_Plane"), [""])
sketch16.MapMode = "FlatFace"
sketch16.AttachmentOffset = App.Placement(V(0, 0, 5), App.Rotation())
sketch16.addGeometry(Part.LineSegment(V(115.3, 4, 0), V(120, 4, 0)), False)
sketch16.addGeometry(Part.LineSegment(V(120, 4, 0), V(120, 26, 0)), False)
sketch16.addGeometry(Part.LineSegment(V(120, 26, 0), V(115.3, 26, 0)), False)
sketch16.addGeometry(Part.LineSegment(V(115.3, 26, 0), V(106.1, 15, 0)), False)
sketch16.addGeometry(Part.LineSegment(V(106.1, 15, 0), V(115.3, 4, 0)), False)
sketch16.addConstraint(Sketcher.Constraint("Coincident", 0, 2, 1, 1))
sketch16.addConstraint(Sketcher.Constraint("Coincident", 1, 2, 2, 1))
sketch16.addConstraint(Sketcher.Constraint("Coincident", 2, 2, 3, 1))
sketch16.addConstraint(Sketcher.Constraint("Coincident", 3, 2, 4, 1))
sketch16.addConstraint(Sketcher.Constraint("Coincident", 4, 2, 0, 1))
sketch16.addConstraint(Sketcher.Constraint("Horizontal", 0))
sketch16.addConstraint(Sketcher.Constraint("Vertical", 1))
sketch16.addConstraint(Sketcher.Constraint("Horizontal", 2))
sketch16.addConstraint(Sketcher.Constraint("Vertical", 2, 2, 4, 2))
sketch16.addConstraint(Sketcher.Constraint("Equal", 3, 4))
sketch16.addConstraint(Sketcher.Constraint("DistanceY", 1, 1, 1, 2, 22.0))
sketch16.addConstraint(Sketcher.Constraint("Angle", 3, Q("-130 deg")))
sketch16.addConstraint(Sketcher.Constraint("DistanceX", -1, 1, 0, 2, 120.0))
sketch16.addConstraint(Sketcher.Constraint("DistanceY", -1, 1, 0, 2, 4.0))
sketch16.addConstraint(Sketcher.Constraint("DistanceX", -1, 1, 3, 2, 106.1))
pocket10 = body.newObject("PartDesign::Pocket", "Pocket009")
pocket10.Profile = sketch16
pocket10.Type = "UpToFirst"
doc.recompute()

fillet = body.newObject("PartDesign::Fillet", "Fillet")
fillet.Base = (pocket10, edges_at(pocket10, [
    (2.5, 18.99, 30),
    (2.5, 18.99, 0),
    (2.5, 48.229, 0),
    (2.5, 81.771, 0),
    (2.5, 48.229, 30),
    (2.5, 81.771, 30),
    (2.5, 111.01, 0),
    (2.5, 111.01, 30),
]))
fillet.Radius = 2
doc.recompute()

fillet2 = body.newObject("PartDesign::Fillet", "Fillet001")
fillet2.Base = (fillet, edges_at(fillet, [
    (2.5, 45.372, 26),
    (2.5, 42.589, 17),
    (2.5, 33.23, 26),
    (2.5, 42.589, 13),
    (2.5, 45.372, 4),
    (2.5, 33.23, 4),
    (2.5, 36.506, 13),
    (2.5, 32.977, 15),
    (2.5, 30.261, 7.538),
    (2.5, 24, 15),
    (2.5, 30.261, 22.462),
    (2.5, 23.9, 15),
    (2.5, 14.67, 4),
    (2.5, 10, 4),
    (2.5, 10, 26),
    (2.5, 14.67, 26),
    (2.5, 84.628, 4),
    (2.5, 87.411, 13),
    (2.5, 93.494, 13),
    (2.5, 96.77, 4),
    (2.5, 87.411, 17),
    (2.5, 84.628, 26),
    (2.5, 96.77, 26),
    (2.5, 93.494, 17),
    (2.5, 106, 15),
    (2.5, 99.739, 7.538),
    (2.5, 97.023, 15),
    (2.5, 99.739, 22.462),
    (2.5, 120, 26),
    (2.5, 120, 4),
    (2.5, 115.33, 4),
    (2.5, 106.1, 15),
    (2.5, 115.33, 26),
]))
fillet2.Radius = 2

doc.recompute()
